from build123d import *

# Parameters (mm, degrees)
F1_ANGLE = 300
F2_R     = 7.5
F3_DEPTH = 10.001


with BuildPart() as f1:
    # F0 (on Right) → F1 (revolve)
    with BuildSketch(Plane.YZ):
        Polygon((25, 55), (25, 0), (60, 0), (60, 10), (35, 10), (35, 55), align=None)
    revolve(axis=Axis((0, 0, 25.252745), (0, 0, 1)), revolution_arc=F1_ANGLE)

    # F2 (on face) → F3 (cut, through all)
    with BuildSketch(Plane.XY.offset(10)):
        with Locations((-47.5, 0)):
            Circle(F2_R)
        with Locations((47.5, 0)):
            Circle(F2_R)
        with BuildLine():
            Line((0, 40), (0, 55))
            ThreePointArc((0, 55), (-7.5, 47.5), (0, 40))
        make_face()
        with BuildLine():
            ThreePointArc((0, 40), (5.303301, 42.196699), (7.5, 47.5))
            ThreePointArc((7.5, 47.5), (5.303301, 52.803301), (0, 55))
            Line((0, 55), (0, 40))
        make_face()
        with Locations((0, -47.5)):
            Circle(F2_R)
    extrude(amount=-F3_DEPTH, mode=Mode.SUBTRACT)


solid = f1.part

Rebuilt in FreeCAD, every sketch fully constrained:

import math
import FreeCAD as App
import Part
import Sketcher


def add_polygon(sketch, points):
    """Adds a closed chain of lines whose ends are joined by coincident constraints."""
    first, n = sketch.GeometryCount, len(points)
    for a, b in zip(points, points[1:] + points[:1]):
        sketch.addGeometry(Part.LineSegment(App.Vector(*a, 0), App.Vector(*b, 0)), False)
    for i in range(n):
        sketch.addConstraint(Sketcher.Constraint("Coincident", first + i, 2, first + (i + 1) % n, 1))

doc = App.newDocument("Part")
body = doc.addObject("PartDesign::Body", "Body")

sketch1 = body.newObject("Sketcher::SketchObject", "Sketch")
sketch1.AttachmentSupport = (doc.getObject("YZ_Plane"), [""])
sketch1.MapMode = "FlatFace"
add_polygon(sketch1, [(25, 55), (25, 0), (60, 0), (60, 10), (35, 10), (35, 55)])
sketch1.addConstraint(Sketcher.Constraint("Vertical", 0))
sketch1.addConstraint(Sketcher.Constraint("Horizontal", 1))
sketch1.addConstraint(Sketcher.Constraint("Vertical", 2))
sketch1.addConstraint(Sketcher.Constraint("Horizontal", 3))
sketch1.addConstraint(Sketcher.Constraint("Vertical", 4))
sketch1.addConstraint(Sketcher.Constraint("Horizontal", 5))
sketch1.addConstraint(Sketcher.Constraint("PointOnObject", 0, 2, -1))
sketch1.addConstraint(Sketcher.Constraint("Equal", 5, 2))
sketch1.addConstraint(Sketcher.Constraint("DistanceX", 1, 1, 1, 2, 35.0))
sketch1.addConstraint(Sketcher.Constraint("DistanceX", 3, 2, 3, 1, 25.0))
sketch1.addConstraint(Sketcher.Constraint("DistanceY", 0, 2, 0, 1, 55.0))
sketch1.addConstraint(Sketcher.Constraint("DistanceX", -1, 1, 0, 2, 25.0))
revolution = body.newObject("PartDesign::Revolution", "Revolution")
revolution.Profile = sketch1
revolution.ReferenceAxis = (sketch1, ["V_Axis"])
revolution.Angle = 300

sketch2 = body.newObject("Sketcher::SketchObject", "Sketch001")
sketch2.AttachmentSupport = (doc.getObject("XY_Plane"), [""])
sketch2.MapMode = "FlatFace"
sketch2.AttachmentOffset = App.Placement(App.Vector(0, 0, 10), App.Rotation())
sketch2.addGeometry(Part.Circle(App.Vector(-48, 0, 0), App.Vector(0, 0, 1), 8), False)
sketch2.addGeometry(Part.Circle(App.Vector(48, 0, 0), App.Vector(0, 0, 1), 8), False)
sketch2.addGeometry(Part.ArcOfCircle(Part.Circle(App.Vector(0, 48, 0), App.Vector(0, 0, 1), 8), math.radians(90), math.radians(270)), False)
sketch2.addGeometry(Part.ArcOfCircle(Part.Circle(App.Vector(0, 47, 0), App.Vector(0, 0, 1), 7), math.radians(-90), math.radians(0)), False)
sketch2.addGeometry(Part.ArcOfCircle(Part.Circle(App.Vector(0, 48, 0), App.Vector(0, 0, 1), 7), math.radians(0), math.radians(90)), False)
sketch2.addGeometry(Part.Circle(App.Vector(0, -48, 0), App.Vector(0, 0, 1), 8), False)
sketch2.addConstraint(Sketcher.Constraint("Tangent", 2, 2, 3, 1))
sketch2.addConstraint(Sketcher.Constraint("Tangent", 3, 2, 4, 1))
sketch2.addConstraint(Sketcher.Constraint("Tangent", 4, 2, 2, 1))
sketch2.addConstraint(Sketcher.Constraint("Equal", 0, 1))
sketch2.addConstraint(Sketcher.Constraint("Equal", 1, 2))
sketch2.addConstraint(Sketcher.Constraint("Equal", 4, 5))
sketch2.addConstraint(Sketcher.Constraint("Symmetric", 0, 3, 1, 3, -1, 1))
sketch2.addConstraint(Sketcher.Constraint("Symmetric", 2, 3, 5, 3, -1, 1))
sketch2.addConstraint(Sketcher.Constraint("PointOnObject", 0, 3, -1))
sketch2.addConstraint(Sketcher.Constraint("PointOnObject", 2, 3, -2))
sketch2.addConstraint(Sketcher.Constraint("PointOnObject", 2, 2, -2))
sketch2.addConstraint(Sketcher.Constraint("PointOnObject", 4, 2, -2))
sketch2.addConstraint(Sketcher.Constraint("Horizontal", 4, 3, 3, 2))
sketch2.addConstraint(Sketcher.Constraint("Diameter", 0, 15.0))
sketch2.addConstraint(Sketcher.Constraint("DistanceY", -1, 1, 2, 2, 40.0))
sketch2.addConstraint(Sketcher.Constraint("DistanceX", 0, 3, 1, 3, 95.0))
pocket1 = body.newObject("PartDesign::Pocket", "Pocket")
pocket1.Profile = sketch2
pocket1.Type = "ThroughAll"

doc.recompute()
